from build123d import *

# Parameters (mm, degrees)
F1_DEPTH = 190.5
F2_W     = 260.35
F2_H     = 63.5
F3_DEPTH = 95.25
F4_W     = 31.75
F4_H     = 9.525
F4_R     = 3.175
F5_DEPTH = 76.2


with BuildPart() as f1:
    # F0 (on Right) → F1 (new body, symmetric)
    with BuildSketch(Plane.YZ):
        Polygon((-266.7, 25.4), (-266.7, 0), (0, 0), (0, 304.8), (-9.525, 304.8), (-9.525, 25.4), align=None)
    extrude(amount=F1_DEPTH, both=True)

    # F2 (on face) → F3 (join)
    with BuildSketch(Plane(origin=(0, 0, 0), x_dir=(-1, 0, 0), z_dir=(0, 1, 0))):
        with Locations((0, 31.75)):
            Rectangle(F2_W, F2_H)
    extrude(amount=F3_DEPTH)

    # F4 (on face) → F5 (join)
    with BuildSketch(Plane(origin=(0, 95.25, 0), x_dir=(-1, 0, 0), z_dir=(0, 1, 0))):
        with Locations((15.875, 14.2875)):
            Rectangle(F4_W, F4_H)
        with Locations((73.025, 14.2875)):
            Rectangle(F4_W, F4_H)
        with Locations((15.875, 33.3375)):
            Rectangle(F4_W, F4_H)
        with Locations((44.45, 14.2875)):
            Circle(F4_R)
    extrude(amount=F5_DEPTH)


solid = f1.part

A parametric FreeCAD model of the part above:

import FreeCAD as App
import Part
import Sketcher

V = App.Vector
Q = App.Units.Quantity

doc = App.newDocument("Part")
body = doc.addObject("PartDesign::Body", "Body")

# Sketch on YZ plane
sketch1 = body.newObject("Sketcher::SketchObject", "Sketch")
sketch1.AttachmentSupport = (doc.getObject("YZ_Plane"), [""])
sketch1.MapMode = "FlatFace"
sketch1.addGeometry([
    Part.LineSegment(V(-266.7, 25.4, 0), V(-266.7, 0, 0)),  # 0
    Part.LineSegment(V(-266.7, 0, 0), V(0, 0, 0)),  # 1
    Part.LineSegment(V(0, 0, 0), V(0, 304.8, 0)),  # 2
    Part.LineSegment(V(0, 304.8, 0), V(-9.525, 304.8, 0)),  # 3
    Part.LineSegment(V(-9.525, 304.8, 0), V(-9.525, 25.4, 0)),  # 4
    Part.LineSegment(V(-9.525, 25.4, 0), V(-266.7, 25.4, 0)),  # 5
], False)
sketch1.addConstraint([
    Sketcher.Constraint("Coincident", 0, 2, 1, 1),
    Sketcher.Constraint("Coincident", 1, 2, 2, 1),
    Sketcher.Constraint("Coincident", 2, 2, 3, 1),
    Sketcher.Constraint("Coincident", 3, 2, 4, 1),
    Sketcher.Constraint("Coincident", 4, 2, 5, 1),
    Sketcher.Constraint("Coincident", 5, 2, 0, 1),
    Sketcher.Constraint("Vertical", 0),
    Sketcher.Constraint("Horizontal", 1),
    Sketcher.Constraint("Vertical", 2),
    Sketcher.Constraint("Horizontal", 3),
    Sketcher.Constraint("Vertical", 4),
    Sketcher.Constraint("Horizontal", 5),
    Sketcher.Constraint("Coincident", 1, 2, -1, 1),
    Sketcher.Constraint("DistanceY", 0, 2, 0, 1, Q("1 in")),
    Sketcher.Constraint("DistanceY", 2, 1, 2, 2, Q("12 in")),
    Sketcher.Constraint("DistanceX", 1, 1, 1, 2, Q("10.5 in")),
    Sketcher.Constraint("DistanceX", 3, 2, 3, 1, Q("0.375 in")),
])
pad1 = body.newObject("PartDesign::Pad", "Pad")
pad1.Profile = sketch1
pad1.Length = Q("15 in")
pad1.Midplane = True

# Sketch on XZ plane
sketch2 = body.newObject("Sketcher::SketchObject", "Sketch001")
sketch2.AttachmentSupport = (doc.getObject("XZ_Plane"), [""])
sketch2.MapMode = "FlatFace"
sketch2.addGeometry([
    Part.LineSegment(V(130.175, 63.5, 0), V(130.175, 0, 0)),
    Part.LineSegment(V(130.175, 0, 0), V(-130.175, 0, 0)),
    Part.LineSegment(V(-130.175, 0, 0), V(-130.175, 63.5, 0)),
    Part.LineSegment(V(-130.175, 63.5, 0), V(130.175, 63.5, 0)),
], False)
sketch2.addConstraint([
    Sketcher.Constraint("Coincident", 0, 2, 1, 1),
    Sketcher.Constraint("Coincident", 1, 2, 2, 1),
    Sketcher.Constraint("Coincident", 2, 2, 3, 1),
    Sketcher.Constraint("Coincident", 3, 2, 0, 1),
    Sketcher.Constraint("Vertical", 0),
    Sketcher.Constraint("Horizontal", 1),
    Sketcher.Constraint("Vertical", 2),
    Sketcher.Constraint("Horizontal", 3),
    Sketcher.Constraint("Symmetric", 0, 2, 1, 2, -1, 1),
    Sketcher.Constraint("DistanceY", 0, 2, 0, 1, Q("2.5 in")),
    Sketcher.Constraint("DistanceX", 1, 2, 1, 1, Q("10.25 in")),
])
pad2 = body.newObject("PartDesign::Pad", "Pad001")
pad2.Profile = sketch2
pad2.Length = Q("3.75 in")
pad2.Reversed = True

# Sketch on XZ plane
sketch3 = body.newObject("Sketcher::SketchObject", "Sketch002")
sketch3.AttachmentSupport = (doc.getObject("XZ_Plane"), [""])
sketch3.MapMode = "FlatFace"
sketch3.AttachmentOffset = App.Placement(V(0, 0, -3.75 * 25.4), App.Rotation())
sketch3.addGeometry([
    Part.LineSegment(V(0, 19.05, 0), V(0, 9.525, 0)),  # 0
    Part.LineSegment(V(0, 9.525, 0), V(-31.75, 9.525, 0)),  # 1
    Part.LineSegment(V(-31.75, 9.525, 0), V(-31.75, 19.05, 0)),  # 2
    Part.LineSegment(V(-31.75, 19.05, 0), V(0, 19.05, 0)),  # 3
    Part.LineSegment(V(-57.15, 19.05, 0), V(-57.15, 9.525, 0)),  # 4
    Part.LineSegment(V(-57.15, 9.525, 0), V(-88.9, 9.525, 0)),  # 5
    Part.LineSegment(V(-88.9, 9.525, 0), V(-88.9, 19.05, 0)),  # 6
    Part.LineSegment(V(-88.9, 19.05, 0), V(-57.15, 19.05, 0)),  # 7
    Part.LineSegment(V(0, 38.1, 0), V(0, 28.575, 0)),  # 8
    Part.LineSegment(V(0, 28.575, 0), V(-31.75, 28.575, 0)),  # 9
    Part.LineSegment(V(-31.75, 28.575, 0), V(-31.75, 38.1, 0)),  # 10
    Part.LineSegment(V(-31.75, 38.1, 0), V(0, 38.1, 0)),  # 11
    Part.Circle(V(-44.45, 14.2875, 0), V(0, 0, 1), 3.175),  # 12
], False)
sketch3.addConstraint([
    Sketcher.Constraint("Coincident", 0, 2, 1, 1),
    Sketcher.Constraint("Coincident", 1, 2, 2, 1),
    Sketcher.Constraint("Coincident", 2, 2, 3, 1),
    Sketcher.Constraint("Coincident", 3, 2, 0, 1),
    Sketcher.Constraint("Coincident", 4, 2, 5, 1),
    Sketcher.Constraint("Coincident", 5, 2, 6, 1),
    Sketcher.Constraint("Coincident", 6, 2, 7, 1),
    Sketcher.Constraint("Coincident", 7, 2, 4, 1),
    Sketcher.Constraint("Coincident", 8, 2, 9, 1),
    Sketcher.Constraint("Coincident", 9, 2, 10, 1),
    Sketcher.Constraint("Coincident", 10, 2, 11, 1),
    Sketcher.Constraint("Coincident", 11, 2, 8, 1),
    Sketcher.Constraint("Vertical", 0),
    Sketcher.Constraint("Horizontal", 1),
    Sketcher.Constraint("Vertical", 2),
    Sketcher.Constraint("Horizontal", 3),
    Sketcher.Constraint("Vertical", 4),
    Sketcher.Constraint("Horizontal", 5),
    Sketcher.Constraint("Vertical", 6),
    Sketcher.Constraint("Horizontal", 7),
    Sketcher.Constraint("Vertical", 8),
    Sketcher.Constraint("Horizontal", 9),
    Sketcher.Constraint("Vertical", 10),
    Sketcher.Constraint("Horizontal", 11),
    Sketcher.Constraint("PointOnObject", 0, 2, -2),
    Sketcher.Constraint("PointOnObject", 8, 2, -2),
    Sketcher.Constraint("Horizontal", 1, 2, 4, 2),
    Sketcher.Constraint("Horizontal", 3, 2, 6, 2),
    Sketcher.Constraint("Vertical", 2, 2, 9, 2),
    Sketcher.Constraint("Equal", 3, 5),
    Sketcher.Constraint("Equal", 6, 8),
    Sketcher.Constraint("Diameter", 12, Q("0.25 in")),
    Sketcher.Constraint("DistanceX", 4, 2, 1, 2, Q("1 in")),
    Sketcher.Constraint("DistanceX", 1, 2, 1, 1, Q("1.25 in")),
    Sketcher.Constraint("DistanceY", -1, 1, 10, 2, Q("1.5 in")),
    Sketcher.Constraint("DistanceX", 12, 3, 1, 2, Q("0.5 in")),
    Sketcher.Constraint("DistanceY", 0, 2, 0, 1, Q("0.375 in")),
    Sketcher.Constraint("DistanceY", -1, 1, 2, 2, Q("0.75 in")),
    Sketcher.Constraint("DistanceY", -1, 1, 12, 3, Q("0.5625 in")),
])
pad3 = body.newObject("PartDesign::Pad", "Pad002")
pad3.Profile = sketch3
pad3.Length = Q("3 in")
pad3.Reversed = True

doc.recompute()
